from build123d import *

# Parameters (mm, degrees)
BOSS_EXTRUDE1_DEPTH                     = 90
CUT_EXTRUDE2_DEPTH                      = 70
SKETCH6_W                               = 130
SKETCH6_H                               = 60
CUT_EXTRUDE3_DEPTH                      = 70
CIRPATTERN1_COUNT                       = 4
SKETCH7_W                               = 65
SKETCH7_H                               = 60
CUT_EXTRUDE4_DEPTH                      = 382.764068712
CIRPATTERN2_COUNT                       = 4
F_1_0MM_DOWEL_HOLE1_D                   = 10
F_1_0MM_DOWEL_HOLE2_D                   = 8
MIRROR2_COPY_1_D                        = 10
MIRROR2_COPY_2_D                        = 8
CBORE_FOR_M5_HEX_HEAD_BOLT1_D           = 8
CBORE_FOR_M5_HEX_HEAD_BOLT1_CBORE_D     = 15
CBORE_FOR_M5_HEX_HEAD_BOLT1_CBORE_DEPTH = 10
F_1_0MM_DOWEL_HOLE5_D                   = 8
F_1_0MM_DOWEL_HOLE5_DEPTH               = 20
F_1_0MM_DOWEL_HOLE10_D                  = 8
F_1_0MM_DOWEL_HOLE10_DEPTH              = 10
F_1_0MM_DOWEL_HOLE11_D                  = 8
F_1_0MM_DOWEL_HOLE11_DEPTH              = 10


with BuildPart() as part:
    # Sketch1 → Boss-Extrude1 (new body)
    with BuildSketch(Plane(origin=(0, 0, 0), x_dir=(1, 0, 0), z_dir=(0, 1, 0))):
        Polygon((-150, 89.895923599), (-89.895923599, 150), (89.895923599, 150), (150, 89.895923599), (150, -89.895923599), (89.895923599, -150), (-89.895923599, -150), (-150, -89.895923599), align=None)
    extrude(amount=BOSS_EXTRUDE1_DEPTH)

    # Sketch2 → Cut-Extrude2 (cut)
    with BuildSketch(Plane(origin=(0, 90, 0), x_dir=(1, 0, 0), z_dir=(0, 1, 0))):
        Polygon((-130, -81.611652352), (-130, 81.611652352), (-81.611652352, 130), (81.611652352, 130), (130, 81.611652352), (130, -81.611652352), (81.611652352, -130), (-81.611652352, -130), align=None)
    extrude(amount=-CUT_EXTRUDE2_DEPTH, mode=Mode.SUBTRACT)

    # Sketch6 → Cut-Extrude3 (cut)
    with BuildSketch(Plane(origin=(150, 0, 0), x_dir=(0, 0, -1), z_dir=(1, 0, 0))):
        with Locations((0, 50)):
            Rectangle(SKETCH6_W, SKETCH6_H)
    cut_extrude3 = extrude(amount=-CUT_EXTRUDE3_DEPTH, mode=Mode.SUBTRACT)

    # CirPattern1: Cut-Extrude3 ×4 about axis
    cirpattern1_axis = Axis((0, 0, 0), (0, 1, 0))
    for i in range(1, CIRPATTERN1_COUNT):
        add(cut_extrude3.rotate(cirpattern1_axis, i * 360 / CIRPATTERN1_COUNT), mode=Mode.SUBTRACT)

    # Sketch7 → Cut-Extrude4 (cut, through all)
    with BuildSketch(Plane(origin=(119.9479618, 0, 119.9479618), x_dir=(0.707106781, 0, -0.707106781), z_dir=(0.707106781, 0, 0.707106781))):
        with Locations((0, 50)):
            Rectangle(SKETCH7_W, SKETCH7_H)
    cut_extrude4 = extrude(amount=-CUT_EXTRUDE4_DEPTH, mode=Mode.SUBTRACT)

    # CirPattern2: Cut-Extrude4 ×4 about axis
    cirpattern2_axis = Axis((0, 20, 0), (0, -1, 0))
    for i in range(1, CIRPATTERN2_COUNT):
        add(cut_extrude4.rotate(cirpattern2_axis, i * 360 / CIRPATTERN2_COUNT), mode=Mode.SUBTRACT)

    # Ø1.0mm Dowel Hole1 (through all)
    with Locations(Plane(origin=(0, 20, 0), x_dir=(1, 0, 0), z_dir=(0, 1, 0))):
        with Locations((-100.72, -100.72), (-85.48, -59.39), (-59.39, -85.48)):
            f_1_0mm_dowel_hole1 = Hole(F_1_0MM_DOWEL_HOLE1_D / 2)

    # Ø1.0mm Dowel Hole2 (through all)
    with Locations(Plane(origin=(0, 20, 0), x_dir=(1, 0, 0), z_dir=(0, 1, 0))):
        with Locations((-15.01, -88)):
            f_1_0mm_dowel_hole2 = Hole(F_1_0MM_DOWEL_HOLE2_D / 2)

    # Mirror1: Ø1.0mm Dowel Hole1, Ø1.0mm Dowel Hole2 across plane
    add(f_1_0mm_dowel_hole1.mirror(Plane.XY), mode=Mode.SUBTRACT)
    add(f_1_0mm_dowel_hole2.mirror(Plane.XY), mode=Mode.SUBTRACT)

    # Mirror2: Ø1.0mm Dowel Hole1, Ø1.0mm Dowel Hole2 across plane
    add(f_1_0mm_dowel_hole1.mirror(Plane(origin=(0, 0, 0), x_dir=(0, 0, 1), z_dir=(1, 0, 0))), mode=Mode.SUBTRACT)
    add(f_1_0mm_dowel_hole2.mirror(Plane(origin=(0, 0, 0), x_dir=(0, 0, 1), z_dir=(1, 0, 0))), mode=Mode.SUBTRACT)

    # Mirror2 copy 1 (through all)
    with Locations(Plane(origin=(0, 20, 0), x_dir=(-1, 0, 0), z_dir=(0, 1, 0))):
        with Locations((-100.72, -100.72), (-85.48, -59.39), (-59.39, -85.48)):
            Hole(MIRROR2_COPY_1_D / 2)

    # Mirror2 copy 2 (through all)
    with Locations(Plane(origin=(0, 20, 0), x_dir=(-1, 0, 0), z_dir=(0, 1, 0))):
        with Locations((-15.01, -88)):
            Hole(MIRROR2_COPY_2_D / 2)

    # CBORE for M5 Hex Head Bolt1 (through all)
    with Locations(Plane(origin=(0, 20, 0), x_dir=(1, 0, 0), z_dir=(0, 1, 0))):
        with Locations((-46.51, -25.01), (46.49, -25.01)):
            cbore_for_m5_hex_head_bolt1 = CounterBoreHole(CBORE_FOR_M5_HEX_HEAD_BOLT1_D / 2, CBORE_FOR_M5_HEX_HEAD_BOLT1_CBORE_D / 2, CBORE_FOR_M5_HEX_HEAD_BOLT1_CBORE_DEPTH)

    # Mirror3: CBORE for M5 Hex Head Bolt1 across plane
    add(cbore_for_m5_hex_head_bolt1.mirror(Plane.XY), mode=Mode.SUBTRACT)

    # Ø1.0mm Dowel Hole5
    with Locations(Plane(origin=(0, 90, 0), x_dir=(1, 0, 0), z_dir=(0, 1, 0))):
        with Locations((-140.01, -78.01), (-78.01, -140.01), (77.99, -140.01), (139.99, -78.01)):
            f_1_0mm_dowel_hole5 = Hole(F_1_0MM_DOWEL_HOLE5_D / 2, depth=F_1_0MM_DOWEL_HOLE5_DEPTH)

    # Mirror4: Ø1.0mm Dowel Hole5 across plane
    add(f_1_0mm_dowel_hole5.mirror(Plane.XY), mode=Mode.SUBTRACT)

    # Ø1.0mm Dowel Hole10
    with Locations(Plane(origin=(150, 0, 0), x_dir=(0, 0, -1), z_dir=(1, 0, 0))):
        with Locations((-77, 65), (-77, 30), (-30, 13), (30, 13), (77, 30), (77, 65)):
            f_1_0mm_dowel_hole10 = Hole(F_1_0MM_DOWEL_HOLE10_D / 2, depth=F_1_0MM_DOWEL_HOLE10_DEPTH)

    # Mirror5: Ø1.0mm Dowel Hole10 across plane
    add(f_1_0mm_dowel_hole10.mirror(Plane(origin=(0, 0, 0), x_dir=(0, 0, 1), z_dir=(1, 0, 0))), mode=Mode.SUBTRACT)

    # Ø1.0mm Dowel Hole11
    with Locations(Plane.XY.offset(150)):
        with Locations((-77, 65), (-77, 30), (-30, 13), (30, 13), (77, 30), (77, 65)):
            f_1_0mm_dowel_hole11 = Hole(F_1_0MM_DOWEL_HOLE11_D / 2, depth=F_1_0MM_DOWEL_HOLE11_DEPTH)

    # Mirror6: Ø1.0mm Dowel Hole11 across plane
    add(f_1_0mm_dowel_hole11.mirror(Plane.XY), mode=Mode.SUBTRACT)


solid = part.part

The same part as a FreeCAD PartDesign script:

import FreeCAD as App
import Part
import Sketcher
from FreeCAD import Vector


def add_polygon(sketch, points):
    """Adds a closed chain of lines whose ends are joined by coincident constraints."""
    first, n = sketch.GeometryCount, len(points)
    for a, b in zip(points, points[1:] + points[:1]):
        sketch.addGeometry(Part.LineSegment(App.Vector(*a, 0), App.Vector(*b, 0)), False)
    for i in range(n):
        sketch.addConstraint(Sketcher.Constraint("Coincident", first + i, 2, first + (i + 1) % n, 1))

doc = App.newDocument("Part")
params = doc.addObject("Spreadsheet::Sheet", "Params")
for row, (alias, value) in enumerate([
    ("sketch1_length", "85 mm"),
    ("pad1_length", "90 mm"),
    ("pocket1_length", "70 mm"),
    ("sketch3_width", "60 mm"),
    ("sketch3_height", "130 mm"),
    ("pocket2_length", "70 mm"),
    ("sketch4_width", "65 mm"),
    ("sketch4_height", "60 mm"),
    ("sketch5_diameter", "10 mm"),
    ("hole_diameter", "10 mm"),
    ("sketch6_diameter", "8 mm"),
    ("hole2_diameter", "8 mm"),
    ("sketch7_diameter", "10 mm"),
    ("hole3_diameter", "10 mm"),
    ("sketch8_diameter", "8 mm"),
    ("hole4_diameter", "8 mm"),
    ("sketch9_diameter", "8 mm"),
    ("hole5_diameter", "8 mm"),
    ("hole5_cbore_diameter", "15 mm"),
    ("hole5_cbore_depth", "10 mm"),
    ("sketch10_diameter", "8 mm"),
    ("hole6_diameter", "8 mm"),
    ("hole6_depth", "20 mm"),
    ("sketch11_diameter", "8 mm"),
    ("hole7_diameter", "8 mm"),
    ("hole7_depth", "10 mm"),
    ("sketch12_diameter", "8 mm"),
    ("hole8_diameter", "8 mm"),
    ("hole8_depth", "10 mm"),
], start=1):
    params.set(f"A{row}", alias)
    params.set(f"B{row}", "=" + value)
    params.setAlias(f"B{row}", alias)

body = doc.addObject("PartDesign::Body", "Body")

# Sketch on XZ plane
sketch1 = body.newObject("Sketcher::SketchObject", "Sketch")
sketch1.AttachmentSupport = (doc.getObject("XZ_Plane"), [""])
sketch1.MapMode = "FlatFace"
add_polygon(sketch1, [(-90, -150), (-150, -90), (-150, 90), (-90, 150), (90, 150), (150, 90), (150, -90), (90, -150)])  # lines 0-7
sketch1.addConstraint([
    Sketcher.Constraint("Vertical", 1),
    Sketcher.Constraint("Horizontal", 3),
    Sketcher.Constraint("Vertical", 5),
    Sketcher.Constraint("Horizontal", 7),
    Sketcher.Constraint("Symmetric", 0, 2, 4, 2, -1, 1),
    Sketcher.Constraint("Symmetric", 2, 2, 6, 2, -1, 1),
    Sketcher.Constraint("Perpendicular", 0, 2),
    Sketcher.Constraint("Perpendicular", 2, 4),
    Sketcher.Constraint("Perpendicular", 4, 6),
    Sketcher.Constraint("Horizontal", 1, 2, 4, 2),
    Sketcher.Constraint("Vertical", 3, 2, 6, 2),
    Sketcher.Constraint("Equal", 7, 1),
    Sketcher.Constraint("Distance", 0, 85.0),
    Sketcher.Constraint("DistanceX", 0, 2, -1, 1, 150.0),
])
sketch1.setExpression("Constraints[20]", "Params.sketch1_length")
pad1 = body.newObject("PartDesign::Pad", "Pad")
pad1.Profile = sketch1
pad1.setExpression("Length", "Params.pad1_length")
pad1.Reversed = True

# Sketch on XZ plane
sketch2 = body.newObject("Sketcher::SketchObject", "Sketch001")
sketch2.AttachmentSupport = (doc.getObject("XZ_Plane"), [""])
sketch2.MapMode = "FlatFace"
sketch2.AttachmentOffset = App.Placement(Vector(0, 0, -90), App.Rotation())
add_polygon(sketch2, [(-130, -82), (-130, 82), (-82, 130), (82, 130), (130, 82), (130, -82), (82, -130), (-82, -130)])  # lines 0-7
sketch2.addConstraint([
    Sketcher.Constraint("Vertical", 0),
    Sketcher.Constraint("Horizontal", 2),
    Sketcher.Constraint("Vertical", 4),
    Sketcher.Constraint("Horizontal", 6),
    Sketcher.Constraint("Symmetric", 0, 2, 4, 2, -1, 1),
    Sketcher.Constraint("Symmetric", 1, 2, 5, 2, -1, 1),
    Sketcher.Constraint("Perpendicular", 1, 3),
    Sketcher.Constraint("Perpendicular", 5, 7),
    Sketcher.Constraint("Horizontal", 0, 2, 3, 2),
    Sketcher.Constraint("Horizontal", 4, 2, 7, 2),
    Sketcher.Constraint("Vertical", 2, 2, 5, 2),
    Sketcher.Constraint("Equal", 6, 0),
    Sketcher.Constraint("DistanceX", 0, 2, -1, 1, 130.0),
    Sketcher.Constraint("DistanceX", 2, 1, 2, 2, 163.223305),
])
pocket1 = body.newObject("PartDesign::Pocket", "Pocket")
pocket1.Profile = sketch2
pocket1.setExpression("Length", "Params.pocket1_length")
pocket1.Reversed = True

# Sketch on YZ plane
sketch3 = body.newObject("Sketcher::SketchObject", "Sketch002")
sketch3.AttachmentSupport = (doc.getObject("YZ_Plane"), [""])
sketch3.MapMode = "FlatFace"
sketch3.AttachmentOffset = App.Placement(Vector(0, 0, 150), App.Rotation())
add_polygon(sketch3, [(80, 65), (20, 65), (20, -65), (80, -65)])  # lines 0-3
sketch3.addConstraint([
    Sketcher.Constraint("Horizontal", 0),
    Sketcher.Constraint("Vertical", 1),
    Sketcher.Constraint("Horizontal", 2),
    Sketcher.Constraint("Vertical", 3),
    Sketcher.Constraint("DistanceX", 0, 2, 0, 1, 60.0),
    Sketcher.Constraint("DistanceY", 1, 2, 1, 1, 130.0),
    Sketcher.Constraint("DistanceX", -1, 1, 0, 2, 20.0),
    Sketcher.Constraint("DistanceY", -1, 1, 0, 2, 65.0),
])
sketch3.setExpression("Constraints[8]", "Params.sketch3_width")
sketch3.setExpression("Constraints[9]", "Params.sketch3_height")
pocket2 = body.newObject("PartDesign::Pocket", "Pocket001")
pocket2.Profile = sketch3
pocket2.setExpression("Length", "Params.pocket2_length")
doc.recompute()

polarpattern = body.newObject("PartDesign::PolarPattern", "PolarPattern")
polarpattern.Originals = [pocket2]
polarpattern.Axis = (doc.getObject("Y_Axis"), [""])
polarpattern.Angle = 360
polarpattern.Occurrences = 4
body.Tip = polarpattern

# Sketch on an angled plane
sketch4 = body.newObject("Sketcher::SketchObject", "Sketch003")
sketch4.Placement = App.Placement(Vector(119.947962, 0, 119.947962), App.Rotation(Vector(0.707106781, 0, -0.707106781), Vector(0, 0.999999999, 0), Vector(0.707106781, 0, 0.707106781), "ZXY"))
add_polygon(sketch4, [(-32, 80), (-32, 20), (32, 20), (32, 80)])  # lines 0-3
sketch4.addConstraint([
    Sketcher.Constraint("Vertical", 0),
    Sketcher.Constraint("Horizontal", 1),
    Sketcher.Constraint("Vertical", 2),
    Sketcher.Constraint("Horizontal", 3),
    Sketcher.Constraint("DistanceX", 1, 1, 1, 2, 65.0),
    Sketcher.Constraint("DistanceY", 0, 2, 0, 1, 60.0),
    Sketcher.Constraint("DistanceY", -1, 1, 0, 2, 20.0),
    Sketcher.Constraint("DistanceX", 0, 2, -1, 1, 32.5),
])
sketch4.setExpression("Constraints[8]", "Params.sketch4_width")
sketch4.setExpression("Constraints[9]", "Params.sketch4_height")
pocket3 = body.newObject("PartDesign::Pocket", "Pocket002")
pocket3.Profile = sketch4
pocket3.Type = "ThroughAll"
doc.recompute()

polarpattern2 = body.newObject("PartDesign::PolarPattern", "PolarPattern001")
polarpattern2.Originals = [pocket3]
polarpattern2.Axis = (doc.getObject("Y_Axis"), [""])
polarpattern2.Angle = 360
polarpattern2.Occurrences = 4
body.Tip = polarpattern2

# Sketch on XZ plane
sketch5 = body.newObject("Sketcher::SketchObject", "Sketch004")
sketch5.AttachmentSupport = (doc.getObject("XZ_Plane"), [""])
sketch5.MapMode = "FlatFace"
sketch5.AttachmentOffset = App.Placement(Vector(0, 0, -20), App.Rotation())
sketch5.addGeometry([
    Part.Circle(Vector(-101, 101, 0), Vector(0, 0, 1), 5),
    Part.Circle(Vector(-85, 59, 0), Vector(0, 0, 1), 5),
    Part.Circle(Vector(-59, 85, 0), Vector(0, 0, 1), 5),
], False)
sketch5.addConstraint([
    Sketcher.Constraint("Equal", 0, 1),
    Sketcher.Constraint("Equal", 1, 2),
    Sketcher.Constraint("Diameter", 0, 10.0),
    Sketcher.Constraint("DistanceX", 0, 3, -1, 1, 100.72),
    Sketcher.Constraint("DistanceY", -1, 1, 0, 3, 100.72),
    Sketcher.Constraint("DistanceX", 1, 3, -1, 1, 85.48),
    Sketcher.Constraint("DistanceY", -1, 1, 1, 3, 59.39),
    Sketcher.Constraint("DistanceX", 2, 3, -1, 1, 59.39),
    Sketcher.Constraint("DistanceY", -1, 1, 2, 3, 85.48),
])
sketch5.setExpression("Constraints[2]", "Params.sketch5_diameter")
doc.recompute()
hole = body.newObject("PartDesign::Hole", "Hole")
hole.Profile = sketch5
hole.ThreadType = "None"
hole.setExpression("Diameter", "Params.hole_diameter")
hole.DepthType = "ThroughAll"
hole.Reversed = True

# Sketch on XZ plane
sketch6 = body.newObject("Sketcher::SketchObject", "Sketch005")
sketch6.AttachmentSupport = (doc.getObject("XZ_Plane"), [""])
sketch6.MapMode = "FlatFace"
sketch6.AttachmentOffset = App.Placement(Vector(0, 0, -20), App.Rotation())
sketch6.addGeometry(Part.Circle(Vector(-15, 88, 0), Vector(0, 0, 1), 4), False)
sketch6.addConstraint([
    Sketcher.Constraint("Diameter", 0, 8.0),
    Sketcher.Constraint("DistanceY", -1, 1, 0, 3, 88.0),
    Sketcher.Constraint("DistanceX", 0, 3, -1, 1, 15.01),
])
sketch6.setExpression("Constraints[0]", "Params.sketch6_diameter")
doc.recompute()
hole2 = body.newObject("PartDesign::Hole", "Hole001")
hole2.Profile = sketch6
hole2.ThreadType = "None"
hole2.setExpression("Diameter", "Params.hole2_diameter")
hole2.DepthType = "ThroughAll"
hole2.Reversed = True
doc.recompute()

mirrored = body.newObject("PartDesign::Mirrored", "Mirrored")
mirrored.Originals = [hole, hole2]
mirrored.MirrorPlane = (doc.getObject("XY_Plane"), [""])
body.Tip = mirrored
doc.recompute()

mirrored2 = body.newObject("PartDesign::Mirrored", "Mirrored001")
mirrored2.Originals = [hole, hole2]
mirrored2.MirrorPlane = (doc.getObject("YZ_Plane"), [""])
body.Tip = mirrored2

# Sketch on XZ plane
sketch7 = body.newObject("Sketcher::SketchObject", "Sketch006")
sketch7.AttachmentSupport = (doc.getObject("XZ_Plane"), [""])
sketch7.MapMode = "FlatFace"
sketch7.AttachmentOffset = App.Placement(Vector(0, 0, -20), App.Rotation())
sketch7.addGeometry([
    Part.Circle(Vector(101, -101, 0), Vector(0, 0, 1), 5),
    Part.Circle(Vector(85, -59, 0), Vector(0, 0, 1), 5),
    Part.Circle(Vector(59, -85, 0), Vector(0, 0, 1), 5),
], False)
sketch7.addConstraint([
    Sketcher.Constraint("Equal", 0, 1),
    Sketcher.Constraint("Equal", 1, 2),
    Sketcher.Constraint("Diameter", 0, 10.0),
    Sketcher.Constraint("DistanceX", -1, 1, 0, 3, 100.72),
    Sketcher.Constraint("DistanceY", 0, 3, -1, 1, 100.72),
    Sketcher.Constraint("DistanceX", -1, 1, 1, 3, 85.48),
    Sketcher.Constraint("DistanceY", 1, 3, -1, 1, 59.39),
    Sketcher.Constraint("DistanceX", -1, 1, 2, 3, 59.39),
    Sketcher.Constraint("DistanceY", 2, 3, -1, 1, 85.48),
])
sketch7.setExpression("Constraints[2]", "Params.sketch7_diameter")
doc.recompute()
hole3 = body.newObject("PartDesign::Hole", "Hole002")
hole3.Profile = sketch7
hole3.ThreadType = "None"
hole3.setExpression("Diameter", "Params.hole3_diameter")
hole3.DepthType = "ThroughAll"
hole3.Reversed = True

# Sketch on XZ plane
sketch8 = body.newObject("Sketcher::SketchObject", "Sketch007")
sketch8.AttachmentSupport = (doc.getObject("XZ_Plane"), [""])
sketch8.MapMode = "FlatFace"
sketch8.AttachmentOffset = App.Placement(Vector(0, 0, -20), App.Rotation())
sketch8.addGeometry(Part.Circle(Vector(15, -88, 0), Vector(0, 0, 1), 4), False)
sketch8.addConstraint([
    Sketcher.Constraint("Diameter", 0, 8.0),
    Sketcher.Constraint("DistanceY", 0, 3, -1, 1, 88.0),
    Sketcher.Constraint("DistanceX", -1, 1, 0, 3, 15.01),
])
sketch8.setExpression("Constraints[0]", "Params.sketch8_diameter")
doc.recompute()
hole4 = body.newObject("PartDesign::Hole", "Hole003")
hole4.Profile = sketch8
hole4.ThreadType = "None"
hole4.setExpression("Diameter", "Params.hole4_diameter")
hole4.DepthType = "ThroughAll"
hole4.Reversed = True

# Sketch on XZ plane
sketch9 = body.newObject("Sketcher::SketchObject", "Sketch008")
sketch9.AttachmentSupport = (doc.getObject("XZ_Plane"), [""])
sketch9.MapMode = "FlatFace"
sketch9.AttachmentOffset = App.Placement(Vector(0, 0, -20), App.Rotation())
sketch9.addGeometry([
    Part.Circle(Vector(-46.5, 25, 0), Vector(0, 0, 1), 4),
    Part.Circle(Vector(46.5, 25, 0), Vector(0, 0, 1), 4),
], False)
sketch9.addConstraint([
    Sketcher.Constraint("Equal", 0, 1),
    Sketcher.Constraint("Horizontal", 0, 3, 1, 3),
    Sketcher.Constraint("Diameter", 0, 8.0),
    Sketcher.Constraint("DistanceX", 0, 3, 1, 3, 93.0),
    Sketcher.Constraint("DistanceX", 0, 3, -1, 1, 46.51),
    Sketcher.Constraint("DistanceY", -1, 1, 0, 3, 25.01),
])
sketch9.setExpression("Constraints[2]", "Params.sketch9_diameter")
doc.recompute()
hole5 = body.newObject("PartDesign::Hole", "Hole004")
hole5.Profile = sketch9
hole5.ThreadType = "None"
hole5.setExpression("Diameter", "Params.hole5_diameter")
hole5.DepthType = "ThroughAll"
hole5.HoleCutType = "Counterbore"
hole5.setExpression("HoleCutDiameter", "Params.hole5_cbore_diameter")
hole5.setExpression("HoleCutDepth", "Params.hole5_cbore_depth")
hole5.Reversed = True
doc.recompute()

mirrored3 = body.newObject("PartDesign::Mirrored", "Mirrored002")
mirrored3.Originals = [hole5]
mirrored3.MirrorPlane = (doc.getObject("XY_Plane"), [""])
body.Tip = mirrored3

# Sketch on XZ plane
sketch10 = body.newObject("Sketcher::SketchObject", "Sketch009")
sketch10.AttachmentSupport = (doc.getObject("XZ_Plane"), [""])
sketch10.MapMode = "FlatFace"
sketch10.AttachmentOffset = App.Placement(Vector(0, 0, -90), App.Rotation())
sketch10.addGeometry([
    Part.Circle(Vector(-140, 78, 0), Vector(0, 0, 1), 4),
    Part.Circle(Vector(-78, 140, 0), Vector(0, 0, 1), 4),
    Part.Circle(Vector(78, 140, 0), Vector(0, 0, 1), 4),
    Part.Circle(Vector(140, 78, 0), Vector(0, 0, 1), 4),
], False)
sketch10.addConstraint([
    Sketcher.Constraint("Equal", 0, 1),
    Sketcher.Constraint("Equal", 1, 2),
    Sketcher.Constraint("Equal", 2, 3),
    Sketcher.Constraint("Horizontal", 1, 3, 2, 3),
    Sketcher.Constraint("Horizontal", 0, 3, 3, 3),
    Sketcher.Constraint("Diameter", 0, 8.0),
    Sketcher.Constraint("DistanceX", 0, 3, 1, 3, 62.0),
    Sketcher.Constraint("DistanceY", 0, 3, 1, 3, 62.0),
    Sketcher.Constraint("DistanceX", 1, 3, 2, 3, 156.0),
    Sketcher.Constraint("DistanceX", 2, 3, 3, 3, 62.0),
    Sketcher.Constraint("DistanceX", 0, 3, -1, 1, 140.01),
    Sketcher.Constraint("DistanceY", -1, 1, 0, 3, 78.01),
])
sketch10.setExpression("Constraints[5]", "Params.sketch10_diameter")
doc.recompute()
hole6 = body.newObject("PartDesign::Hole", "Hole005")
hole6.Profile = sketch10
hole6.ThreadType = "None"
hole6.setExpression("Diameter", "Params.hole6_diameter")
hole6.DepthType = "Dimension"
hole6.setExpression("Depth", "Params.hole6_depth")
hole6.DrillPoint = "Flat"
hole6.Reversed = True
doc.recompute()

mirrored4 = body.newObject("PartDesign::Mirrored", "Mirrored003")
mirrored4.Originals = [hole6]
mirrored4.MirrorPlane = (doc.getObject("XY_Plane"), [""])
body.Tip = mirrored4

# Sketch on YZ plane
sketch11 = body.newObject("Sketcher::SketchObject", "Sketch010")
sketch11.AttachmentSupport = (doc.getObject("YZ_Plane"), [""])
sketch11.MapMode = "FlatFace"
sketch11.AttachmentOffset = App.Placement(Vector(0, 0, 150), App.Rotation())
sketch11.addGeometry([
    Part.Circle(Vector(65, 77, 0), Vector(0, 0, 1), 4),  # 0
    Part.Circle(Vector(30, 77, 0), Vector(0, 0, 1), 4),  # 1
    Part.Circle(Vector(13, 30, 0), Vector(0, 0, 1), 4),  # 2
    Part.Circle(Vector(13, -30, 0), Vector(0, 0, 1), 4),  # 3
    Part.Circle(Vector(30, -77, 0), Vector(0, 0, 1), 4),  # 4
    Part.Circle(Vector(65, -77, 0), Vector(0, 0, 1), 4),  # 5
], False)
sketch11.addConstraint([
    Sketcher.Constraint("Equal", 0, 1),
    Sketcher.Constraint("Equal", 1, 2),
    Sketcher.Constraint("Equal", 2, 3),
    Sketcher.Constraint("Equal", 3, 4),
    Sketcher.Constraint("Equal", 4, 5),
    Sketcher.Constraint("Symmetric", 2, 3, 3, 3, -1),
    Sketcher.Constraint("Symmetric", 1, 3, 4, 3, -1),
    Sketcher.Constraint("Symmetric", 0, 3, 5, 3, -1),
    Sketcher.Constraint("Horizontal", 0, 3, 1, 3),
    Sketcher.Constraint("Diameter", 0, 8.0),
    Sketcher.Constraint("DistanceX", -1, 1, 0, 3, 65.0),
    Sketcher.Constraint("DistanceY", -1, 1, 0, 3, 77.0),
    Sketcher.Constraint("DistanceX", -1, 1, 1, 3, 30.0),
    Sketcher.Constraint("DistanceX", -1, 1, 2, 3, 13.0),
    Sketcher.Constraint("DistanceY", -1, 1, 2, 3, 30.0),
])
sketch11.setExpression("Constraints[9]", "Params.sketch11_diameter")
doc.recompute()
hole7 = body.newObject("PartDesign::Hole", "Hole006")
hole7.Profile = sketch11
hole7.ThreadType = "None"
hole7.setExpression("Diameter", "Params.hole7_diameter")
hole7.DepthType = "Dimension"
hole7.setExpression("Depth", "Params.hole7_depth")
hole7.DrillPoint = "Flat"
doc.recompute()

mirrored5 = body.newObject("PartDesign::Mirrored", "Mirrored004")
mirrored5.Originals = [hole7]
mirrored5.MirrorPlane = (doc.getObject("YZ_Plane"), [""])
body.Tip = mirrored5

# Sketch on XY plane
sketch12 = body.newObject("Sketcher::SketchObject", "Sketch011")
sketch12.AttachmentSupport = (doc.getObject("XY_Plane"), [""])
sketch12.MapMode = "FlatFace"
sketch12.AttachmentOffset = App.Placement(Vector(0, 0, 150), App.Rotation())
sketch12.addGeometry([
    Part.Circle(Vector(-77, 65, 0), Vector(0, 0, 1), 4),  # 0
    Part.Circle(Vector(-77, 30, 0), Vector(0, 0, 1), 4),  # 1
    Part.Circle(Vector(-30, 13, 0), Vector(0, 0, 1), 4),  # 2
    Part.Circle(Vector(30, 13, 0), Vector(0, 0, 1), 4),  # 3
    Part.Circle(Vector(77, 30, 0), Vector(0, 0, 1), 4),  # 4
    Part.Circle(Vector(77, 65, 0), Vector(0, 0, 1), 4),  # 5
], False)
sketch12.addConstraint([
    Sketcher.Constraint("Equal", 0, 1),
    Sketcher.Constraint("Equal", 1, 2),
    Sketcher.Constraint("Equal", 2, 3),
    Sketcher.Constraint("Equal", 3, 4),
    Sketcher.Constraint("Equal", 4, 5),
    Sketcher.Constraint("Symmetric", 2, 3, 3, 3, -2),
    Sketcher.Constraint("Symmetric", 1, 3, 4, 3, -2),
    Sketcher.Constraint("Symmetric", 0, 3, 5, 3, -2),
    Sketcher.Constraint("Vertical", 0, 3, 1, 3),
    Sketcher.Constraint("Diameter", 0, 8.0),
    Sketcher.Constraint("DistanceX", 0, 3, -1, 1, 77.0),
    Sketcher.Constraint("DistanceY", -1, 1, 0, 3, 65.0),
    Sketcher.Constraint("DistanceY", -1, 1, 1, 3, 30.0),
    Sketcher.Constraint("DistanceX", 2, 3, -1, 1, 30.0),
    Sketcher.Constraint("DistanceY", -1, 1, 2, 3, 13.0),
])
sketch12.setExpression("Constraints[9]", "Params.sketch12_diameter")
doc.recompute()
hole8 = body.newObject("PartDesign::Hole", "Hole007")
hole8.Profile = sketch12
hole8.ThreadType = "None"
hole8.setExpression("Diameter", "Params.hole8_diameter")
hole8.DepthType = "Dimension"
hole8.setExpression("Depth", "Params.hole8_depth")
hole8.DrillPoint = "Flat"
doc.recompute()

mirrored6 = body.newObject("PartDesign::Mirrored", "Mirrored005")
mirrored6.Originals = [hole8]
mirrored6.MirrorPlane = (doc.getObject("XY_Plane"), [""])
body.Tip = mirrored6

doc.recompute()
